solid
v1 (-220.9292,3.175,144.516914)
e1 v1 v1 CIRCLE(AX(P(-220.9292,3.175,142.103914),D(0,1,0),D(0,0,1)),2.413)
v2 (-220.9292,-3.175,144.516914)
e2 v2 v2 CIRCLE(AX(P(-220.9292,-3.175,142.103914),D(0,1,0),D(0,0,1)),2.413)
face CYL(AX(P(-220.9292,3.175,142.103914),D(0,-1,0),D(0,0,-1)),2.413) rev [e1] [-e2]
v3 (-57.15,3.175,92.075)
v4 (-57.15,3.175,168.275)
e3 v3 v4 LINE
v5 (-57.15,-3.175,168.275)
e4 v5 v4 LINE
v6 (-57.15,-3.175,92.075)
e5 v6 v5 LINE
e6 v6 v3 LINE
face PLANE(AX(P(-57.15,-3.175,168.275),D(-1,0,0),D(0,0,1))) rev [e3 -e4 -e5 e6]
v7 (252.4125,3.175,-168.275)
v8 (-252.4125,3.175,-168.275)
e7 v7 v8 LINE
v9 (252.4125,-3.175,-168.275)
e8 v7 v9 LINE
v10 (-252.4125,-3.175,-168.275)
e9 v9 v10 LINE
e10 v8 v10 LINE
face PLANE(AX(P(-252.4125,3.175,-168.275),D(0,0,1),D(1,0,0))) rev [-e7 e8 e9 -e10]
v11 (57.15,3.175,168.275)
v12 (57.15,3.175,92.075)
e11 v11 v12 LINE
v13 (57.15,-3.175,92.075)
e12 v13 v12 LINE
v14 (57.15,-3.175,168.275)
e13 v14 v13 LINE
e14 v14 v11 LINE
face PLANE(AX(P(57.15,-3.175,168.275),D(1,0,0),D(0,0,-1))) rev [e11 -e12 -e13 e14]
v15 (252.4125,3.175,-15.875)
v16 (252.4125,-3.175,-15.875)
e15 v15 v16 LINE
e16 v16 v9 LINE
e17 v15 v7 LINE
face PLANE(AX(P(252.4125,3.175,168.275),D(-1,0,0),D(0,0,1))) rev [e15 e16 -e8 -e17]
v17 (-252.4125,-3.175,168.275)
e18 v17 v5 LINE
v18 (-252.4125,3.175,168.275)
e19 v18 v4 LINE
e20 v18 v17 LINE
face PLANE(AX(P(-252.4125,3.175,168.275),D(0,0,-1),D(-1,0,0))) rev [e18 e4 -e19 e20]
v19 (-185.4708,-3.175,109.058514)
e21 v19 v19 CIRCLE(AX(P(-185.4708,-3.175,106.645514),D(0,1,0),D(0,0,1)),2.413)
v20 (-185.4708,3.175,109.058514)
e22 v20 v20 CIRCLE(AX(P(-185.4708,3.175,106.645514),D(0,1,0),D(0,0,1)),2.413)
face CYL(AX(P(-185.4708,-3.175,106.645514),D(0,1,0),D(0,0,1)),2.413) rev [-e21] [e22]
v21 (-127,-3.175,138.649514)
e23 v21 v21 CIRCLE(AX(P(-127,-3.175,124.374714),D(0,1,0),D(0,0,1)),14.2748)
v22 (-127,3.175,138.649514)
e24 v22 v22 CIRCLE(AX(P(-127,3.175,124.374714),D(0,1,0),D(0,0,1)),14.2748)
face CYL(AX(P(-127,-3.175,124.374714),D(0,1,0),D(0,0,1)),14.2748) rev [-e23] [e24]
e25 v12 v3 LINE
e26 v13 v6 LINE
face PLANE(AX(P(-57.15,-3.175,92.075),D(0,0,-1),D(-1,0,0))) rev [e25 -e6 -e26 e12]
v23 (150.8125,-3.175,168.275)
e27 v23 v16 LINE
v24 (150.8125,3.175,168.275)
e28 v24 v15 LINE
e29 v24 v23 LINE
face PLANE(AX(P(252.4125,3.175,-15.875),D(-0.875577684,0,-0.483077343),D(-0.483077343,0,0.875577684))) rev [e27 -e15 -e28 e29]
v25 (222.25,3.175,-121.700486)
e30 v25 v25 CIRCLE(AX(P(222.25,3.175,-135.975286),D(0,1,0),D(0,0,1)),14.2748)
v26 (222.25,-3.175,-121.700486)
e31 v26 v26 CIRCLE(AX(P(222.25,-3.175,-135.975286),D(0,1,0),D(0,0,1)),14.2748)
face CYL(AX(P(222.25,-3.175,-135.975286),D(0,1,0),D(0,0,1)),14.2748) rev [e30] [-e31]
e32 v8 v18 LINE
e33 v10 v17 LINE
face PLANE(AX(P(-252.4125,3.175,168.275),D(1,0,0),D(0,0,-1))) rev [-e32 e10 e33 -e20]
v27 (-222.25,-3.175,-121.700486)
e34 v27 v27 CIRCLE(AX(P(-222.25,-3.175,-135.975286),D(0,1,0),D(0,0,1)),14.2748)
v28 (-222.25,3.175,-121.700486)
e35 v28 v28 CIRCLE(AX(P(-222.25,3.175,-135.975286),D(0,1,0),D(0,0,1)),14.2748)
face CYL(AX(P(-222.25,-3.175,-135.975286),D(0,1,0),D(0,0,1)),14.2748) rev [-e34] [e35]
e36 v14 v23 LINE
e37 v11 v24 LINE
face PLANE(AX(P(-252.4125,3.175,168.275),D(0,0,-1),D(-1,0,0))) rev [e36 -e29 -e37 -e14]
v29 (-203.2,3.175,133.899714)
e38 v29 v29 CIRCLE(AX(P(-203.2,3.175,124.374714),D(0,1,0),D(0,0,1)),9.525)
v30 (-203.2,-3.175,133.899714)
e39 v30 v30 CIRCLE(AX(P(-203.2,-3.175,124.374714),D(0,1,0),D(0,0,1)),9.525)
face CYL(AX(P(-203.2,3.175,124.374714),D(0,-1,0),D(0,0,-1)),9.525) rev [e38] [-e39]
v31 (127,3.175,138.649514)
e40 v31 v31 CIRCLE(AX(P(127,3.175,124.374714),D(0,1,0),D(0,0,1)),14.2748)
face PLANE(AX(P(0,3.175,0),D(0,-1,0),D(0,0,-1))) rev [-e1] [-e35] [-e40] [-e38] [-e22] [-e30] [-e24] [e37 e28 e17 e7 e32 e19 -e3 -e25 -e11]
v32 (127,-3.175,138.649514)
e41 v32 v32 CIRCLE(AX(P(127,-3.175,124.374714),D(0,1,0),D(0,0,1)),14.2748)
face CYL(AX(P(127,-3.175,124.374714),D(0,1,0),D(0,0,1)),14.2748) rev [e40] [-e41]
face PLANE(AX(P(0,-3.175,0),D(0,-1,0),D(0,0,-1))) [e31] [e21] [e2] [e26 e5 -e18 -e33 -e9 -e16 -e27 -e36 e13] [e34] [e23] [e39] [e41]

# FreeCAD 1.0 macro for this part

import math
import FreeCAD as App
import Part
import Sketcher
Q = App.Units.Quantity

doc = App.newDocument("Part")
body = doc.addObject("PartDesign::Body", "Body")

# Sketch on XZ plane
sketch1 = body.newObject("Sketcher::SketchObject", "Sketch")
sketch1.AttachmentSupport = (doc.getObject("XZ_Plane"), [""])
sketch1.MapMode = "FlatFace"
sketch1.addGeometry(Part.LineSegment(App.Vector(-252.4125, -168.275, 0), App.Vector(-252.4125, 168.275, 0)), False)
sketch1.addGeometry(Part.LineSegment(App.Vector(-252.4125, 168.275, 0), App.Vector(252.4125, 168.275, 0)), False)
sketch1.addGeometry(Part.LineSegment(App.Vector(252.4125, 168.275, 0), App.Vector(252.4125, -168.275, 0)), False)
sketch1.addGeometry(Part.LineSegment(App.Vector(252.4125, -168.275, 0), App.Vector(-252.4125, -168.275, 0)), False)
sketch1.addConstraint(Sketcher.Constraint("Coincident", 0, 2, 1, 1))
sketch1.addConstraint(Sketcher.Constraint("Coincident", 1, 2, 2, 1))
sketch1.addConstraint(Sketcher.Constraint("Coincident", 2, 2, 3, 1))
sketch1.addConstraint(Sketcher.Constraint("Coincident", 3, 2, 0, 1))
sketch1.addConstraint(Sketcher.Constraint("Vertical", 0))
sketch1.addConstraint(Sketcher.Constraint("Horizontal", 1))
sketch1.addConstraint(Sketcher.Constraint("Vertical", 2))
sketch1.addConstraint(Sketcher.Constraint("Horizontal", 3))
sketch1.addConstraint(Sketcher.Constraint("Symmetric", 0, 2, 2, 2, -1, 1))
sketch1.addConstraint(Sketcher.Constraint("DistanceY", 0, 1, 0, 2, Q("13.25 in")))
sketch1.addConstraint(Sketcher.Constraint("DistanceX", 1, 1, 1, 2, Q("19.875 in")))
pad1 = body.newObject("PartDesign::Pad", "Pad")
pad1.Profile = sketch1
pad1.Length = Q("0.25 in")
pad1.Midplane = True

# Sketch on XZ plane
sketch2 = body.newObject("Sketcher::SketchObject", "Sketch001")
sketch2.AttachmentSupport = (doc.getObject("XZ_Plane"), [""])
sketch2.MapMode = "FlatFace"
sketch2.AttachmentOffset = App.Placement(App.Vector(0, 0, -0.125 * 25.4), App.Rotation())
sketch2.addGeometry(Part.Circle(App.Vector(-222.25, -135.975286, 0), App.Vector(0, 0, 1), 14.2748), False)
sketch2.addGeometry(Part.Circle(App.Vector(222.25, -135.975286, 0), App.Vector(0, 0, 1), 14.2748), False)
sketch2.addGeometry(Part.Circle(App.Vector(-127, 124.374714, 0), App.Vector(0, 0, 1), 14.2748), False)
sketch2.addGeometry(Part.Circle(App.Vector(127, 124.374714, 0), App.Vector(0, 0, 1), 14.2748), False)
sketch2.addConstraint(Sketcher.Constraint("Equal", 0, 1))
sketch2.addConstraint(Sketcher.Constraint("Equal", 1, 2))
sketch2.addConstraint(Sketcher.Constraint("Equal", 2, 3))
sketch2.addConstraint(Sketcher.Constraint("Symmetric", 0, 3, 1, 3, -2))
sketch2.addConstraint(Sketcher.Constraint("Symmetric", 2, 3, 3, 3, -2))
sketch2.addConstraint(Sketcher.Constraint("Diameter", 0, Q("1.124 in")))
sketch2.addConstraint(Sketcher.Constraint("DistanceX", 2, 3, -1, 1, Q("5 in")))
sketch2.addConstraint(Sketcher.Constraint("DistanceX", 0, 3, 1, 3, Q("17.5 in")))
sketch2.addConstraint(Sketcher.Constraint("DistanceY", 0, 3, 2, 3, Q("10.25 in")))
sketch2.addConstraint(Sketcher.Constraint("DistanceY", 0, 3, -1, 1, 135.975286))
pocket1 = body.newObject("PartDesign::Pocket", "Pocket")
pocket1.Profile = sketch2
pocket1.Type = "ThroughAll"
pocket1.Reversed = True

# Sketch on XZ plane
sketch3 = body.newObject("Sketcher::SketchObject", "Sketch002")
sketch3.AttachmentSupport = (doc.getObject("XZ_Plane"), [""])
sketch3.MapMode = "FlatFace"
sketch3.AttachmentOffset = App.Placement(App.Vector(0, 0, 0.125 * 25.4), App.Rotation())
sketch3.addGeometry(Part.LineSegment(App.Vector(252.4125, -15.875, 0), App.Vector(252.4125, 168.275, 0)), False)
sketch3.addGeometry(Part.LineSegment(App.Vector(252.4125, 168.275, 0), App.Vector(150.8125, 168.275, 0)), False)
sketch3.addGeometry(Part.LineSegment(App.Vector(150.8125, 168.275, 0), App.Vector(252.4125, -15.875, 0)), False)
sketch3.addGeometry(Part.LineSegment(App.Vector(-252.4125, -15.875, 0), App.Vector(-150.8125, 168.275, 0)), False)
sketch3.addGeometry(Part.LineSegment(App.Vector(-150.8125, 168.275, 0), App.Vector(-252.4125, 168.275, 0)), False)
sketch3.addGeometry(Part.LineSegment(App.Vector(-252.4125, 168.275, 0), App.Vector(-252.4125, -15.875, 0)), False)
sketch3.addConstraint(Sketcher.Constraint("Coincident", 0, 2, 1, 1))
sketch3.addConstraint(Sketcher.Constraint("Coincident", 1, 2, 2, 1))
sketch3.addConstraint(Sketcher.Constraint("Coincident", 2, 2, 0, 1))
sketch3.addConstraint(Sketcher.Constraint("Coincident", 3, 2, 4, 1))
sketch3.addConstraint(Sketcher.Constraint("Coincident", 4, 2, 5, 1))
sketch3.addConstraint(Sketcher.Constraint("Coincident", 5, 2, 3, 1))
sketch3.addConstraint(Sketcher.Constraint("Vertical", 0))
sketch3.addConstraint(Sketcher.Constraint("Horizontal", 1))
sketch3.addConstraint(Sketcher.Constraint("Horizontal", 4))
sketch3.addConstraint(Sketcher.Constraint("Vertical", 5))
sketch3.addConstraint(Sketcher.Constraint("Symmetric", 1, 2, 3, 2, -2))
sketch3.addConstraint(Sketcher.Constraint("Symmetric", 2, 2, 5, 2, -2))
sketch3.addConstraint(Sketcher.Constraint("DistanceX", 1, 2, 1, 1, Q("4 in")))
sketch3.addConstraint(Sketcher.Constraint("DistanceY", 0, 1, 0, 2, Q("7.25 in")))
sketch3.addConstraint(Sketcher.Constraint("DistanceX", -1, 1, 0, 2, Q("9.9375 in")))
sketch3.addConstraint(Sketcher.Constraint("DistanceY", -1, 1, 0, 2, Q("6.625 in")))
pocket2 = body.newObject("PartDesign::Pocket", "Pocket001")
pocket2.Profile = sketch3
pocket2.Type = "ThroughAll"

# Sketch on XZ plane
sketch4 = body.newObject("Sketcher::SketchObject", "Sketch003")
sketch4.AttachmentSupport = (doc.getObject("XZ_Plane"), [""])
sketch4.MapMode = "FlatFace"
sketch4.AttachmentOffset = App.Placement(App.Vector(0, 0, -0.125 * 25.4), App.Rotation())
sketch4.addGeometry(Part.LineSegment(App.Vector(-57.15, 92.075, 0), App.Vector(-57.15, 168.275, 0)), False)
sketch4.addGeometry(Part.LineSegment(App.Vector(-57.15, 168.275, 0), App.Vector(57.15, 168.275, 0)), False)
sketch4.addGeometry(Part.LineSegment(App.Vector(57.15, 168.275, 0), App.Vector(57.15, 92.075, 0)), False)
sketch4.addGeometry(Part.LineSegment(App.Vector(57.15, 92.075, 0), App.Vector(-57.15, 92.075, 0)), False)
sketch4.addConstraint(Sketcher.Constraint("Coincident", 0, 2, 1, 1))
sketch4.addConstraint(Sketcher.Constraint("Coincident", 1, 2, 2, 1))
sketch4.addConstraint(Sketcher.Constraint("Coincident", 2, 2, 3, 1))
sketch4.addConstraint(Sketcher.Constraint("Coincident", 3, 2, 0, 1))
sketch4.addConstraint(Sketcher.Constraint("Vertical", 0))
sketch4.addConstraint(Sketcher.Constraint("Horizontal", 1))
sketch4.addConstraint(Sketcher.Constraint("Vertical", 2))
sketch4.addConstraint(Sketcher.Constraint("Horizontal", 3))
sketch4.addConstraint(Sketcher.Constraint("DistanceY", 0, 1, 0, 2, Q("3 in")))
sketch4.addConstraint(Sketcher.Constraint("DistanceX", 1, 1, 1, 2, Q("4.5 in")))
sketch4.addConstraint(Sketcher.Constraint("DistanceX", 0, 2, -1, 1, Q("2.25 in")))
sketch4.addConstraint(Sketcher.Constraint("DistanceY", -1, 1, 0, 2, Q("6.625 in")))
pocket3 = body.newObject("PartDesign::Pocket", "Pocket002")
pocket3.Profile = sketch4
pocket3.Type = "ThroughAll"
pocket3.Reversed = True

# Sketch on XZ plane
sketch5 = body.newObject("Sketcher::SketchObject", "Sketch004")
sketch5.AttachmentSupport = (doc.getObject("XZ_Plane"), [""])
sketch5.MapMode = "FlatFace"
sketch5.addGeometry(Part.LineSegment(App.Vector(-186.100199, 104.316045, 0), App.Vector(-252.4125, -15.875, 0)), False)
sketch5.addGeometry(Part.LineSegment(App.Vector(-252.4125, -15.875, 0), App.Vector(-252.4125, 168.275, 0)), False)
sketch5.addGeometry(Part.LineSegment(App.Vector(-252.4125, 168.275, 0), App.Vector(-150.8125, 168.275, 0)), False)
sketch5.addGeometry(Part.LineSegment(App.Vector(-150.8125, 168.275, 0), App.Vector(-183.835842, 108.420192, 0)), False)
sketch5.addGeometry(Part.ArcOfCircle(Part.Circle(App.Vector(-185.4708, 106.645514, 0), App.Vector(0, 0, 1), 2.413), math.radians(-105.119727), math.radians(47.346563)), False)
sketch5.addGeometry(Part.Circle(App.Vector(-220.9292, 142.103914, 0), App.Vector(0, 0, 1), 2.413), False)
sketch5.addGeometry(Part.Circle(App.Vector(-203.2, 124.374714, 0), App.Vector(0, 0, 1), 9.525), False)
sketch5.addConstraint(Sketcher.Constraint("Coincident", 0, 2, 1, 1))
sketch5.addConstraint(Sketcher.Constraint("Coincident", 1, 2, 2, 1))
sketch5.addConstraint(Sketcher.Constraint("Coincident", 2, 2, 3, 1))
sketch5.addConstraint(Sketcher.Constraint("Coincident", 3, 2, 4, 2))
sketch5.addConstraint(Sketcher.Constraint("Coincident", 4, 1, 0, 1))
sketch5.addConstraint(Sketcher.Constraint("Vertical", 1))
sketch5.addConstraint(Sketcher.Constraint("Horizontal", 2))
sketch5.addConstraint(Sketcher.Constraint("Equal", 4, 5))
sketch5.addConstraint(Sketcher.Constraint("Parallel", 0, 3))
sketch5.addConstraint(Sketcher.Constraint("Diameter", 5, Q("0.19 in")))
sketch5.addConstraint(Sketcher.Constraint("Diameter", 6, Q("0.75 in")))
sketch5.addConstraint(Sketcher.Constraint("DistanceX", 2, 1, 2, 2, Q("4 in")))
sketch5.addConstraint(Sketcher.Constraint("DistanceX", 6, 3, -1, 1, Q("8 in")))
sketch5.addConstraint(Sketcher.Constraint("DistanceY", 1, 1, 1, 2, Q("7.25 in")))
sketch5.addConstraint(Sketcher.Constraint("DistanceX", 4, 3, -1, 1, Q("7.302 in")))
sketch5.addConstraint(Sketcher.Constraint("DistanceX", 5, 3, -1, 1, Q("8.698 in")))
sketch5.addConstraint(Sketcher.Constraint("DistanceX", 0, 2, -1, 1, Q("9.9375 in")))
sketch5.addConstraint(Sketcher.Constraint("DistanceY", 0, 2, -1, 1, Q("0.625 in")))
sketch5.addConstraint(Sketcher.Constraint("DistanceY", 4, 3, 5, 3, Q("1.396 in")))
sketch5.addConstraint(Sketcher.Constraint("DistanceY", 4, 3, 6, 3, Q("0.698 in")))
sketch5.addConstraint(Sketcher.Constraint("DistanceX", 4, 1, -1, 1, 186.100199))
sketch5.addConstraint(Sketcher.Constraint("DistanceY", -1, 1, 3, 2, 108.420192))
pad2 = body.newObject("PartDesign::Pad", "Pad001")
pad2.Profile = sketch5
pad2.Length = Q("0.25 in")
pad2.Midplane = True

# Sketch on XZ plane
sketch6 = body.newObject("Sketcher::SketchObject", "Sketch005")
sketch6.AttachmentSupport = (doc.getObject("XZ_Plane"), [""])
sketch6.MapMode = "FlatFace"
sketch6.addGeometry(Part.ArcOfCircle(Part.Circle(App.Vector(-185.4708, 106.645514, 0), App.Vector(0, 0, 1), 2.413), math.radians(-105.119727), math.radians(0)), False)
sketch6.addGeometry(Part.ArcOfCircle(Part.Circle(App.Vector(-185.4708, 106.645514, 0), App.Vector(0, 0, 1), 2.413), math.radians(47.346563), math.radians(254.880273)), False)
sketch6.addGeometry(Part.ArcOfCircle(Part.Circle(App.Vector(-185.4708, 106.645514, 0), App.Vector(0, 0, 1), 2.413), math.radians(0), math.radians(47.346563)), False)
sketch6.addConstraint(Sketcher.Constraint("Tangent", 0, 1, 1, 2))
sketch6.addConstraint(Sketcher.Constraint("Tangent", 1, 1, 2, 2))
sketch6.addConstraint(Sketcher.Constraint("Tangent", 2, 1, 0, 2))
sketch6.addConstraint(Sketcher.Constraint("Horizontal", 1, 3, 2, 1))
sketch6.addConstraint(Sketcher.Constraint("Radius", 0, Q("0.095 in")))
sketch6.addConstraint(Sketcher.Constraint("DistanceX", 0, 3, -1, 1, Q("7.302 in")))
sketch6.addConstraint(Sketcher.Constraint("DistanceX", 0, 1, -1, 1, 186.100199))
sketch6.addConstraint(Sketcher.Constraint("DistanceY", -1, 1, 1, 1, 108.420192))
sketch6.addConstraint(Sketcher.Constraint("DistanceY", 1, 3, 1, 1, 1.774678))
pocket4 = body.newObject("PartDesign::Pocket", "Pocket003")
pocket4.Profile = sketch6
pocket4.Type = "ThroughAll"
pocket4.Midplane = True

doc.recompute()
